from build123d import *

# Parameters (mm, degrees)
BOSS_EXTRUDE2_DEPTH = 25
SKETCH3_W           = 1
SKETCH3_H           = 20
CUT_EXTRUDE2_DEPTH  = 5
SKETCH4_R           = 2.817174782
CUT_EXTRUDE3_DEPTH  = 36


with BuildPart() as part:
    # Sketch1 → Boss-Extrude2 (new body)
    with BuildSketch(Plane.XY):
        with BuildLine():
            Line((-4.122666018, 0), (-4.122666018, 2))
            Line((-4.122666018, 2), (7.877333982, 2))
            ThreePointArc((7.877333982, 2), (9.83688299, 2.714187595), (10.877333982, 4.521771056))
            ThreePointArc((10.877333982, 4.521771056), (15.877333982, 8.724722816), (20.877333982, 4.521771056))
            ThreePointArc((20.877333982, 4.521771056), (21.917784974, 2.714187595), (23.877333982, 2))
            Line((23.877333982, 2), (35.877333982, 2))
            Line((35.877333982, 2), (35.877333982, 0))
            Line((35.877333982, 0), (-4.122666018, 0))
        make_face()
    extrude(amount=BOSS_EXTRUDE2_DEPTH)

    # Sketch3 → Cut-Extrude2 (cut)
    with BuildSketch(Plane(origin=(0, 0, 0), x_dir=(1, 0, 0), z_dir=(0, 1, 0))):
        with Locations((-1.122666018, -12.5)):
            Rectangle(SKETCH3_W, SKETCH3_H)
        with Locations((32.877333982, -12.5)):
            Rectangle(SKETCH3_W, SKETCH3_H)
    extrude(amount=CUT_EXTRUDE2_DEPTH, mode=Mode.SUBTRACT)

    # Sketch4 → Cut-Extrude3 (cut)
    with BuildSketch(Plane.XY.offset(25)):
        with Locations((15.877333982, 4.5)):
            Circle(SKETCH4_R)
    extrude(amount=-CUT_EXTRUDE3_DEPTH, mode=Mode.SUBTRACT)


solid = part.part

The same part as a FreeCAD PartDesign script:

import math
import FreeCAD as App
import Part
import Sketcher

doc = App.newDocument("Part")
body = doc.addObject("PartDesign::Body", "Body")

sketch1 = doc.addObject("Sketcher::SketchObject", "Sketch")
body.addObject(sketch1)
sketch1.AttachmentSupport = (doc.XY_Plane, [""])
sketch1.MapMode = "FlatFace"
sketch1.addGeometry([
    Part.LineSegment(App.Vector(-4.1, 2, 0), App.Vector(-4.1, 0, 0)),
    Part.LineSegment(App.Vector(-4.1, 0, 0), App.Vector(35.9, 0, 0)),
    Part.LineSegment(App.Vector(35.9, 0, 0), App.Vector(35.9, 2, 0)),
    Part.LineSegment(App.Vector(35.9, 2, 0), App.Vector(23.9, 2, 0)),
    Part.ArcOfCircle(Part.Circle(App.Vector(23.9, 5, 0), App.Vector(0, 0, 1), 3), math.radians(-170), math.radians(-90)),
    Part.ArcOfCircle(Part.Circle(App.Vector(15.9, 3.6, 0), App.Vector(0, 0, 1), 5.1), math.radians(10), math.radians(170)),
    Part.ArcOfCircle(Part.Circle(App.Vector(7.9, 5, 0), App.Vector(0, 0, 1), 3), math.radians(-90), math.radians(-10)),
    Part.LineSegment(App.Vector(7.9, 2, 0), App.Vector(-4.1, 2, 0)),
], False)
sketch1.addConstraint([
    Sketcher.Constraint("Coincident", 0, 2, 1, 1),
    Sketcher.Constraint("Coincident", 1, 2, 2, 1),
    Sketcher.Constraint("Coincident", 2, 2, 3, 1),
    Sketcher.Constraint("Tangent", 3, 2, 4, 2),
    Sketcher.Constraint("Tangent", 4, 1, 5, 1),
    Sketcher.Constraint("Tangent", 5, 2, 6, 2),
    Sketcher.Constraint("Tangent", 6, 1, 7, 1),
    Sketcher.Constraint("Coincident", 7, 2, 0, 1),
    Sketcher.Constraint("Vertical", 0),
    Sketcher.Constraint("Horizontal", 1),
    Sketcher.Constraint("Vertical", 2),
    Sketcher.Constraint("Horizontal", 3),
    Sketcher.Constraint("Horizontal", 7),
    Sketcher.Constraint("Equal", 4, 6),
    Sketcher.Constraint("PointOnObject", 0, 2, -1),
    Sketcher.Constraint("Horizontal", 4, 3, 6, 3),
    Sketcher.Constraint("Equal", 3, 7),
    Sketcher.Constraint("DistanceX", 1, 1, 1, 2, 40.0),
    Sketcher.Constraint("DistanceX", 3, 2, 3, 1, 12.0),
    Sketcher.Constraint("DistanceY", 0, 2, 0, 1, 2.0),
    Sketcher.Constraint("DistanceX", 4, 1, 4, 3, 3.0),
    Sketcher.Constraint("Radius", 4, 3.045346),
    Sketcher.Constraint("DistanceX", -1, 1, 4, 3, 23.877334),
])
pad1 = doc.addObject("PartDesign::Pad", "Pad")
body.addObject(pad1)
pad1.Profile = sketch1
pad1.Length = 25

sketch2 = doc.addObject("Sketcher::SketchObject", "Sketch001")
body.addObject(sketch2)
sketch2.AttachmentSupport = (doc.XZ_Plane, [""])
sketch2.MapMode = "FlatFace"
sketch2.addGeometry([
    Part.LineSegment(App.Vector(-1.6, 2.5, 0), App.Vector(-1.6, 22.5, 0)),
    Part.LineSegment(App.Vector(-1.6, 22.5, 0), App.Vector(-0.6, 22.5, 0)),
    Part.LineSegment(App.Vector(-0.6, 22.5, 0), App.Vector(-0.6, 2.5, 0)),
    Part.LineSegment(App.Vector(-0.6, 2.5, 0), App.Vector(-1.6, 2.5, 0)),
    Part.LineSegment(App.Vector(32.4, 2.5, 0), App.Vector(32.4, 22.5, 0)),
    Part.LineSegment(App.Vector(32.4, 22.5, 0), App.Vector(33.4, 22.5, 0)),
    Part.LineSegment(App.Vector(33.4, 22.5, 0), App.Vector(33.4, 2.5, 0)),
    Part.LineSegment(App.Vector(33.4, 2.5, 0), App.Vector(32.4, 2.5, 0)),
], False)
sketch2.addConstraint([
    Sketcher.Constraint("Coincident", 0, 2, 1, 1),
    Sketcher.Constraint("Coincident", 1, 2, 2, 1),
    Sketcher.Constraint("Coincident", 2, 2, 3, 1),
    Sketcher.Constraint("Coincident", 3, 2, 0, 1),
    Sketcher.Constraint("Coincident", 4, 2, 5, 1),
    Sketcher.Constraint("Coincident", 5, 2, 6, 1),
    Sketcher.Constraint("Coincident", 6, 2, 7, 1),
    Sketcher.Constraint("Coincident", 7, 2, 4, 1),
    Sketcher.Constraint("Vertical", 0),
    Sketcher.Constraint("Horizontal", 1),
    Sketcher.Constraint("Vertical", 2),
    Sketcher.Constraint("Horizontal", 3),
    Sketcher.Constraint("Vertical", 4),
    Sketcher.Constraint("Horizontal", 5),
    Sketcher.Constraint("Vertical", 6),
    Sketcher.Constraint("Horizontal", 7),
    Sketcher.Constraint("Horizontal", 1, 2, 4, 2),
    Sketcher.Constraint("Horizontal", 3, 2, 6, 2),
    Sketcher.Constraint("Equal", 3, 5),
    Sketcher.Constraint("DistanceX", 1, 1, 1, 2, 1.0),
    Sketcher.Constraint("DistanceY", 0, 1, 0, 2, 20.0),
    Sketcher.Constraint("DistanceX", 1, 2, 4, 2, 33.0),
    Sketcher.Constraint("DistanceY", -1, 1, 0, 2, 22.5),
    Sketcher.Constraint("DistanceX", 0, 2, -1, 1, 1.622666),
])
pocket1 = doc.addObject("PartDesign::Pocket", "Pocket")
body.addObject(pocket1)
pocket1.Profile = sketch2
pocket1.Length = 5

sketch3 = doc.addObject("Sketcher::SketchObject", "Sketch002")
body.addObject(sketch3)
sketch3.AttachmentSupport = (doc.XY_Plane, [""])
sketch3.MapMode = "FlatFace"
sketch3.AttachmentOffset = App.Placement(App.Vector(0, 0, 25), App.Rotation())
sketch3.addGeometry(Part.Circle(App.Vector(15.9, 4.5, 0), App.Vector(0, 0, 1), 2.8), False)
sketch3.addConstraint([
    Sketcher.Constraint("DistanceY", -1, 1, 0, 3, 4.5),
    Sketcher.Constraint("Diameter", 0, 5.63435),
    Sketcher.Constraint("DistanceX", -1, 1, 0, 3, 15.877334),
])
pocket2 = doc.addObject("PartDesign::Pocket", "Pocket001")
body.addObject(pocket2)
pocket2.Profile = sketch3
pocket2.Length = 36

doc.recompute()
